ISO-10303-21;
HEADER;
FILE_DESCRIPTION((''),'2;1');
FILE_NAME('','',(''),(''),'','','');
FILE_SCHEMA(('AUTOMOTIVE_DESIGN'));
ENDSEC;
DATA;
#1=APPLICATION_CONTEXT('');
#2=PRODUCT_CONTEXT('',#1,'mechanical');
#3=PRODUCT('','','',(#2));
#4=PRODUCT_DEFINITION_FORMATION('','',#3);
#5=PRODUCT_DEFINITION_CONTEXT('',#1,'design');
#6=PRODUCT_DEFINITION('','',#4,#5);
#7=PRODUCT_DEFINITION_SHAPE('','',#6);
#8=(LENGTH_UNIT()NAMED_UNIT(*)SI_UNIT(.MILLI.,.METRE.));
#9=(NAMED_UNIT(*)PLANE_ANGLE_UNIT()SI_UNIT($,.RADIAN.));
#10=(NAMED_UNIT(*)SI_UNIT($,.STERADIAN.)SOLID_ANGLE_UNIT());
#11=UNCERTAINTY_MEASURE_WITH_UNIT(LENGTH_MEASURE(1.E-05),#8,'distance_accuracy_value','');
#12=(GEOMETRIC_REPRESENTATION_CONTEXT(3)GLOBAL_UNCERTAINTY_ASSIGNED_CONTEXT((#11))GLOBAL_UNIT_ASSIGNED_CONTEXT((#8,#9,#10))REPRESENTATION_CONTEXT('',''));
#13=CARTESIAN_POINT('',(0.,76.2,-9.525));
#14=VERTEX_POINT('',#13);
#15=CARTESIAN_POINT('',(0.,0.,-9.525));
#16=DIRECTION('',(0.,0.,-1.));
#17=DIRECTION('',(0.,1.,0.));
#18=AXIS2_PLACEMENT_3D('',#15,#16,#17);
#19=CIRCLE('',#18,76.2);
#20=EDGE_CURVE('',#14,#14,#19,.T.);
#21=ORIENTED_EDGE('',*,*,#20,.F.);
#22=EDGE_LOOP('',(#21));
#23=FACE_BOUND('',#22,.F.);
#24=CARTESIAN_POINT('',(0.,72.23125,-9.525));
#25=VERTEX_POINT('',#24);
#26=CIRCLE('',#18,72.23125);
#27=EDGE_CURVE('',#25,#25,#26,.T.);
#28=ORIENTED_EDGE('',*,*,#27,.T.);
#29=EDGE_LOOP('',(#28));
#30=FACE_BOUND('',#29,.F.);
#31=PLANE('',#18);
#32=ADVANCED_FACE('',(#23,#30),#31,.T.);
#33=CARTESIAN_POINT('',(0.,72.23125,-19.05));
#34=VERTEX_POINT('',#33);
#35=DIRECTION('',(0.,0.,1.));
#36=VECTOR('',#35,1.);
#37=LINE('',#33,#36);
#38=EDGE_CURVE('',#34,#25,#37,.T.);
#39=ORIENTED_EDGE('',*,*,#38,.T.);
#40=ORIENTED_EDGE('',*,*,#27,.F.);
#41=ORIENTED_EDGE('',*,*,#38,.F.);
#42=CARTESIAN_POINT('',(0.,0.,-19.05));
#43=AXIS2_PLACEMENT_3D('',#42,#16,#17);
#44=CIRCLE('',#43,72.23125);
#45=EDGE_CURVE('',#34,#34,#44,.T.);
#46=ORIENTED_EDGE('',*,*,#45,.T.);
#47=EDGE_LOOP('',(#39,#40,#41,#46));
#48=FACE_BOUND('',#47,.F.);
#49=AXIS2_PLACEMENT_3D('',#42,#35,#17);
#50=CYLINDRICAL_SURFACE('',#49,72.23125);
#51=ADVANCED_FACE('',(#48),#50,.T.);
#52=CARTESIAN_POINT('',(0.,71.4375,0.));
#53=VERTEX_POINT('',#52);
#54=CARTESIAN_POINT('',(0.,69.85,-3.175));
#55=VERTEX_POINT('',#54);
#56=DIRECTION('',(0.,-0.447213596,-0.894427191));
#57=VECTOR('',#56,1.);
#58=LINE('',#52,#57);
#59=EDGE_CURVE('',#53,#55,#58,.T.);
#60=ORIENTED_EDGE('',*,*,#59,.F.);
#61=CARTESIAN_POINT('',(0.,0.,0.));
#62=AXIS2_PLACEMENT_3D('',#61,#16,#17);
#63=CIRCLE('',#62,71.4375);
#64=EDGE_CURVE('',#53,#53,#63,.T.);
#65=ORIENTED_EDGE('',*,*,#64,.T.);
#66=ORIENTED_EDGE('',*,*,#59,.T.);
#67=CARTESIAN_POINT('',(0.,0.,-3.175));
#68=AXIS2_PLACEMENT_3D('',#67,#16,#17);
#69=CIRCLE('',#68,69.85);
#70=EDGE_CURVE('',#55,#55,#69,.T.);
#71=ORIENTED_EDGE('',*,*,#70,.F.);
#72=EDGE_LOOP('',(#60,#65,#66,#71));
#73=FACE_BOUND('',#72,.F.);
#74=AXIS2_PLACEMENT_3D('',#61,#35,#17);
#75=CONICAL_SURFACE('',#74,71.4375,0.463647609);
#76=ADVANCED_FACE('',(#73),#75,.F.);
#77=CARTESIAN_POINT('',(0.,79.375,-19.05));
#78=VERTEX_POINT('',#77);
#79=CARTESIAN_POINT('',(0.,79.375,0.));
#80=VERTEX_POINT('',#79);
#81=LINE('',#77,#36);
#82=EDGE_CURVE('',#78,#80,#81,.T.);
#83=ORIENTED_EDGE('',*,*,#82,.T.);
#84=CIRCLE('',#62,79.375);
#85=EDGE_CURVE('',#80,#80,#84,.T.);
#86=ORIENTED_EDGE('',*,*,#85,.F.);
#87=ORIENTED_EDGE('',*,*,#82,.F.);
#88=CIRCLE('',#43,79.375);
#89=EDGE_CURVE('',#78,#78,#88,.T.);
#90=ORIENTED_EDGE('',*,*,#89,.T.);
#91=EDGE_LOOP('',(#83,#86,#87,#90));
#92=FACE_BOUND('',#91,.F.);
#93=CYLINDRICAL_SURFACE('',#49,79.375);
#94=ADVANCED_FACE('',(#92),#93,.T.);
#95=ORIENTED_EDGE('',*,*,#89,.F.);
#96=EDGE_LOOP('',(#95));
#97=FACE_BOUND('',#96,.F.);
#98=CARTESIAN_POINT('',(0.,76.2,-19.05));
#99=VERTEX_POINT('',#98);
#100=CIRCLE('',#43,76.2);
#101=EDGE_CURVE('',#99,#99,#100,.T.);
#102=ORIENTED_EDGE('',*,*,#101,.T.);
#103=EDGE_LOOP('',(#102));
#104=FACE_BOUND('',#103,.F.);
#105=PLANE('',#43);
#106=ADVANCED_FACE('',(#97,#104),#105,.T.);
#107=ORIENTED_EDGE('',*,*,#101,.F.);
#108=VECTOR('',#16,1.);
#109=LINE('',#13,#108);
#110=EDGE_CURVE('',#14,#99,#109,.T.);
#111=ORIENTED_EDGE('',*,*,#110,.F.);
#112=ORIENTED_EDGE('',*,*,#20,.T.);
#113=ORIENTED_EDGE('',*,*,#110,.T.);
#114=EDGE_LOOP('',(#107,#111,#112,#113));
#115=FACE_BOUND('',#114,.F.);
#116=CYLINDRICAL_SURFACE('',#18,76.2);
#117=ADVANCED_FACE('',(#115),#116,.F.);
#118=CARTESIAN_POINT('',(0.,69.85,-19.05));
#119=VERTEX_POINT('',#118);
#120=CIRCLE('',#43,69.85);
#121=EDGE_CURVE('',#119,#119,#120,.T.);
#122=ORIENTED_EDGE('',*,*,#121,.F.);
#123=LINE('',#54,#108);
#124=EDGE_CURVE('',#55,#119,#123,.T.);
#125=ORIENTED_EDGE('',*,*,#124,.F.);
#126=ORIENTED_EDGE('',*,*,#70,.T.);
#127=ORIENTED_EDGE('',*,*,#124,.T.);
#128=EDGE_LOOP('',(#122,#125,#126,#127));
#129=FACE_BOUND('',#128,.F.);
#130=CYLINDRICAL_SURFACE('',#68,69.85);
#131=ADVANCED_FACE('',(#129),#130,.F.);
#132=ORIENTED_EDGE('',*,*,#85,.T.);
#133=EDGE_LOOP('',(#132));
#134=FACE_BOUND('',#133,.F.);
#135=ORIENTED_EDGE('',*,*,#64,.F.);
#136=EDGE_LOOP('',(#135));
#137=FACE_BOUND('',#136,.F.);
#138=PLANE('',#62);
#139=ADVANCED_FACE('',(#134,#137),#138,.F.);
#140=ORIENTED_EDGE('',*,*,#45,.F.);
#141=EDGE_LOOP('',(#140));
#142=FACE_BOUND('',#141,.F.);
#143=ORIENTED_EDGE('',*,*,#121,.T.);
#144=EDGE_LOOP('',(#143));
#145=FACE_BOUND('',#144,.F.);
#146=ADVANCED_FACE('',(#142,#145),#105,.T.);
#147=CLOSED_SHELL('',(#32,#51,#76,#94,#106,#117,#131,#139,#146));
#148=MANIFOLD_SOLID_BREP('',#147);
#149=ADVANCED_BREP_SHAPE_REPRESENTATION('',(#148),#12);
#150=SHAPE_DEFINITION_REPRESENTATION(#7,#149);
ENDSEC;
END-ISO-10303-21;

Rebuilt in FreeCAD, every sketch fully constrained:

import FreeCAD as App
import Part
import Sketcher
from FreeCAD import Vector
Q = App.Units.Quantity


def add_polygon(sketch, points):
    """Adds a closed chain of lines whose ends are joined by coincident constraints."""
    first, n = sketch.GeometryCount, len(points)
    for a, b in zip(points, points[1:] + points[:1]):
        sketch.addGeometry(Part.LineSegment(App.Vector(*a, 0), App.Vector(*b, 0)), False)
    for i in range(n):
        sketch.addConstraint(Sketcher.Constraint("Coincident", first + i, 2, first + (i + 1) % n, 1))

doc = App.newDocument("Part")
body = doc.addObject("PartDesign::Body", "Body")

sketch1 = body.newObject("Sketcher::SketchObject", "Sketch")
sketch1.AttachmentSupport = (doc.getObject("YZ_Plane"), [""])
sketch1.MapMode = "FlatFace"
add_polygon(sketch1, [(71.4, 0), (69.8, -3.2), (69.8, -19.1), (72.2, -19.1), (72.2, -9.5), (76.2, -9.5), (76.2, -19.1), (79.4, -19.1), (79.4, 0)])
sketch1.addConstraint([
    Sketcher.Constraint("Vertical", 1),
    Sketcher.Constraint("Horizontal", 2),
    Sketcher.Constraint("Vertical", 3),
    Sketcher.Constraint("Horizontal", 4),
    Sketcher.Constraint("Vertical", 5),
    Sketcher.Constraint("Horizontal", 6),
    Sketcher.Constraint("Vertical", 7),
    Sketcher.Constraint("Horizontal", 8),
    Sketcher.Constraint("PointOnObject", 7, 2, -1),
    Sketcher.Constraint("Horizontal", 2, 2, 5, 2),
    Sketcher.Constraint("DistanceX", -1, 1, 4, 2, Q("3 in")),
    Sketcher.Constraint("DistanceY", 7, 1, 7, 2, Q("0.75 in")),
    Sketcher.Constraint("DistanceX", 2, 1, 2, 2, Q("0.09375 in")),
    Sketcher.Constraint("DistanceX", 4, 1, 4, 2, Q("0.15625 in")),
    Sketcher.Constraint("DistanceX", 6, 1, 6, 2, Q("0.125 in")),
    Sketcher.Constraint("DistanceX", 8, 2, 8, 1, Q("0.3125 in")),
    Sketcher.Constraint("DistanceY", 1, 2, 1, 1, Q("0.625 in")),
    Sketcher.Constraint("DistanceY", 3, 1, 3, 2, Q("0.375 in")),
])
revolution = body.newObject("PartDesign::Revolution", "Revolution")
revolution.Profile = sketch1
revolution.ReferenceAxis = (sketch1, ["V_Axis"])
revolution.Angle = 360

doc.recompute()
